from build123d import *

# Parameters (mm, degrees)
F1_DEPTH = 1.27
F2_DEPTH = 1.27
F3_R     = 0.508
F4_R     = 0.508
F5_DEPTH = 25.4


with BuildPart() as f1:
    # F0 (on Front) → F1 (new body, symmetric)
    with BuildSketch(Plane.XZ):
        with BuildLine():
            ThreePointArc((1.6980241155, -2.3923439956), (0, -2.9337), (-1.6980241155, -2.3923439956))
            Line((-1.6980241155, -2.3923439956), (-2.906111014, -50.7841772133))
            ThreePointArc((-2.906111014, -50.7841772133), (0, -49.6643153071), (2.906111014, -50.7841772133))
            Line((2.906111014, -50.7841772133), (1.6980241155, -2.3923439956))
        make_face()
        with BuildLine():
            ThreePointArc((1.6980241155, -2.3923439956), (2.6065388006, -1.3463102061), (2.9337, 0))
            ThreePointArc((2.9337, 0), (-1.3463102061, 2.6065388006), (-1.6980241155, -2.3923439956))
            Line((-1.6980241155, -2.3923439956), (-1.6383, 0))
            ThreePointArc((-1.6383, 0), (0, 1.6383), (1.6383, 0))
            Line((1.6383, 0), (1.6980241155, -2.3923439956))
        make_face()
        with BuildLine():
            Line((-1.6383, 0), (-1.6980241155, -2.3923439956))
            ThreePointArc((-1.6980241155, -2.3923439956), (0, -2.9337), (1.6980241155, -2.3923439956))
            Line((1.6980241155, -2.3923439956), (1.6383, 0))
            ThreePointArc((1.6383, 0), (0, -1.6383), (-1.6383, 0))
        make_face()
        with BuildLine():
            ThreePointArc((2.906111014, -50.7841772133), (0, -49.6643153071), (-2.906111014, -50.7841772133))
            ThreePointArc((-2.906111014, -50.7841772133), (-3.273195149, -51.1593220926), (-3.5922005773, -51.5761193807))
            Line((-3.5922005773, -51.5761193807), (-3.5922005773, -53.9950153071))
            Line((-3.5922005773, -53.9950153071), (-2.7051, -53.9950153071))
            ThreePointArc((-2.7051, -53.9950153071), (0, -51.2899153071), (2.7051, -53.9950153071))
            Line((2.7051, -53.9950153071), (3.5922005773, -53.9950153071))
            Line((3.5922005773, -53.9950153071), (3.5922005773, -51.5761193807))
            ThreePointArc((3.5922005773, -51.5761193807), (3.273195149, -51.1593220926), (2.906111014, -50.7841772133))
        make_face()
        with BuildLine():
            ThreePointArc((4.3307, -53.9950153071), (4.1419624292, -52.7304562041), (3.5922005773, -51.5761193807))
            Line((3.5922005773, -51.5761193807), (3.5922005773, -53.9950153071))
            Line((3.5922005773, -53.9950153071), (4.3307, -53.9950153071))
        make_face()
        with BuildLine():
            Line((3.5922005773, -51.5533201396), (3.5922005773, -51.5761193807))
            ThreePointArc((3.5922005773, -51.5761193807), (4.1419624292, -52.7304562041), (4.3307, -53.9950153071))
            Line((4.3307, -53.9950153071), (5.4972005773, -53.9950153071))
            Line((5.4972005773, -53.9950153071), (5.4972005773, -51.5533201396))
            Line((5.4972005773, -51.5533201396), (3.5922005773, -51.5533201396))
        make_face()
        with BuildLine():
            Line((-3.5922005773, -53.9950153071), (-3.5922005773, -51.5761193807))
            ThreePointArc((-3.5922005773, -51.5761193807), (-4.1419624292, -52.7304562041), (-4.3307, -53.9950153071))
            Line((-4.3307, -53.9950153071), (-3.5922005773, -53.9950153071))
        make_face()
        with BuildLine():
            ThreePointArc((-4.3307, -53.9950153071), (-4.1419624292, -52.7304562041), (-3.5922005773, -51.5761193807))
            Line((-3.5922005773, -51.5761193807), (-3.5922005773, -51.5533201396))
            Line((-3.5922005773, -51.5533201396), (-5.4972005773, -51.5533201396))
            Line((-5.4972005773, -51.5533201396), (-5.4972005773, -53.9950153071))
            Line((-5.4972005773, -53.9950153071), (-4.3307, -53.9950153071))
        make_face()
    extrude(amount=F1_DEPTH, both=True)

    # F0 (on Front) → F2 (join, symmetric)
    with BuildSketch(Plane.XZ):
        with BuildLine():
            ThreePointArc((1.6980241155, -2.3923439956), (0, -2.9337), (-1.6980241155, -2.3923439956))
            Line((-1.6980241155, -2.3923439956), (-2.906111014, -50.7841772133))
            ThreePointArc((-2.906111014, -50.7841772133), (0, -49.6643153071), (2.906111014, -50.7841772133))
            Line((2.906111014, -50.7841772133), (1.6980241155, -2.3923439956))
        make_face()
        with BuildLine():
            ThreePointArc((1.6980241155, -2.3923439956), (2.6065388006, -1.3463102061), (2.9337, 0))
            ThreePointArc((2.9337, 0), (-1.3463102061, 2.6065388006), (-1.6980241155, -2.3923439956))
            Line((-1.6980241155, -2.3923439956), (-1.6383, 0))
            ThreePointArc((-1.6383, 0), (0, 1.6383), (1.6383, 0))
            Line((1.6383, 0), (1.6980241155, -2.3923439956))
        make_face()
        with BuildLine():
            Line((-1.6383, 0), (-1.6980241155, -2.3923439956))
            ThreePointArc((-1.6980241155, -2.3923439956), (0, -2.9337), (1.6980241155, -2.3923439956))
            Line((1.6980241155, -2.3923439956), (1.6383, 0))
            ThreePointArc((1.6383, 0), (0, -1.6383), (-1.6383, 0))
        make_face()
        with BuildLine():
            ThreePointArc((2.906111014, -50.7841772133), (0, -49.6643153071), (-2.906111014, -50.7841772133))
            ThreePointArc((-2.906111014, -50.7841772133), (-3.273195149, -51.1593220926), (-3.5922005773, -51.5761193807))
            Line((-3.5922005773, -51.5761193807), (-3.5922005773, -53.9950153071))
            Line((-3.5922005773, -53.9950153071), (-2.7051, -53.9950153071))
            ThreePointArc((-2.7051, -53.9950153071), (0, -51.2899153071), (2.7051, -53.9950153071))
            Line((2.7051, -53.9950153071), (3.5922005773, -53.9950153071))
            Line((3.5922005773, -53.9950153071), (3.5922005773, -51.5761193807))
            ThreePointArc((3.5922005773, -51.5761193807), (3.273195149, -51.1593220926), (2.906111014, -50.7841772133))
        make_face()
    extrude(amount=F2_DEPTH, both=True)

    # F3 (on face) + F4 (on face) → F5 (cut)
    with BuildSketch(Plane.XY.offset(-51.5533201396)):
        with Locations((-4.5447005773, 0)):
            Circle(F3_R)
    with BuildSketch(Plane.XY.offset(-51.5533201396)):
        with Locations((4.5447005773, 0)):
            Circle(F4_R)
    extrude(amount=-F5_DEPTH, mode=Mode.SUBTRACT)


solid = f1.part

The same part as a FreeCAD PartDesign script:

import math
import FreeCAD as App
import Part
import Sketcher

V = App.Vector
Q = App.Units.Quantity

doc = App.newDocument("Part")
body = doc.addObject("PartDesign::Body", "Body")

sketch1 = body.newObject("Sketcher::SketchObject", "Sketch")
sketch1.AttachmentSupport = (doc.getObject("XZ_Plane"), [""])
sketch1.MapMode = "FlatFace"
sketch1.addGeometry([
    Part.LineSegment(V(-1.698024, -2.392344, 0), V(-2.906111, -50.784177, 0)),
    Part.ArcOfCircle(Part.Circle(V(0, -53.995015, 0), V(0, 0, 1), 4.3307), math.radians(132.148063), math.radians(146.044684)),
    Part.LineSegment(V(-3.592201, -51.576119, 0), V(-3.592201, -51.55332, 0)),
    Part.LineSegment(V(-3.592201, -51.55332, 0), V(-5.497201, -51.55332, 0)),
    Part.LineSegment(V(-5.497201, -51.55332, 0), V(-5.497201, -53.995015, 0)),
    Part.LineSegment(V(-5.497201, -53.995015, 0), V(-2.7051, -53.995015, 0)),
    Part.ArcOfCircle(Part.Circle(V(0, -53.995015, 0), V(0, 0, 1), 2.7051), math.radians(0), math.radians(180)),
    Part.LineSegment(V(2.7051, -53.995015, 0), V(5.497201, -53.995015, 0)),
    Part.LineSegment(V(5.497201, -53.995015, 0), V(5.497201, -51.55332, 0)),
    Part.LineSegment(V(5.497201, -51.55332, 0), V(3.592201, -51.55332, 0)),
    Part.LineSegment(V(3.592201, -51.55332, 0), V(3.592201, -51.576119, 0)),
    Part.ArcOfCircle(Part.Circle(V(0, -53.995015, 0), V(0, 0, 1), 4.3307), math.radians(33.955316), math.radians(47.851937)),
    Part.LineSegment(V(2.906111, -50.784177, 0), V(1.698024, -2.392344, 0)),
    Part.ArcOfCircle(Part.Circle(V(0, 0, 0), V(0, 0, 1), 2.9337), math.radians(-54.633849), math.radians(0)),
    Part.ArcOfCircle(Part.Circle(V(0, 0, 0), V(0, 0, 1), 2.9337), math.radians(0), math.radians(234.633849)),
    Part.Circle(V(0, 0, 0), V(0, 0, 1), 1.6383),
], False)
sketch1.addConstraint([
    Sketcher.Constraint("Coincident", 0, 2, 1, 1),
    Sketcher.Constraint("Coincident", 1, 2, 2, 1),
    Sketcher.Constraint("Coincident", 2, 2, 3, 1),
    Sketcher.Constraint("Coincident", 3, 2, 4, 1),
    Sketcher.Constraint("Coincident", 4, 2, 5, 1),
    Sketcher.Constraint("Coincident", 5, 2, 6, 2),
    Sketcher.Constraint("Coincident", 6, 1, 7, 1),
    Sketcher.Constraint("Coincident", 7, 2, 8, 1),
    Sketcher.Constraint("Coincident", 8, 2, 9, 1),
    Sketcher.Constraint("Coincident", 9, 2, 10, 1),
    Sketcher.Constraint("Coincident", 10, 2, 11, 1),
    Sketcher.Constraint("Coincident", 11, 2, 12, 1),
    Sketcher.Constraint("Coincident", 12, 2, 13, 1),
    Sketcher.Constraint("Tangent", 13, 2, 14, 1),
    Sketcher.Constraint("Coincident", 14, 2, 0, 1),
    Sketcher.Constraint("Vertical", 2),
    Sketcher.Constraint("Horizontal", 3),
    Sketcher.Constraint("Vertical", 4),
    Sketcher.Constraint("Horizontal", 5),
    Sketcher.Constraint("Horizontal", 7),
    Sketcher.Constraint("Vertical", 8),
    Sketcher.Constraint("Horizontal", 9),
    Sketcher.Constraint("Vertical", 10),
    Sketcher.Constraint("Coincident", 13, 3, -1, 1),
    Sketcher.Constraint("Coincident", 15, 3, -1, 1),
    Sketcher.Constraint("Coincident", 6, 3, 1, 3),
    Sketcher.Constraint("Coincident", 11, 3, 1, 3),
    Sketcher.Constraint("Equal", 1, 11),
    Sketcher.Constraint("Equal", 13, 14),
    Sketcher.Constraint("Symmetric", 5, 2, 6, 1, -2),
    Sketcher.Constraint("Symmetric", 3, 2, 8, 2, -2),
    Sketcher.Constraint("PointOnObject", 13, 2, -1),
    Sketcher.Constraint("Horizontal", 11, 3, 4, 2),
    Sketcher.Constraint("Horizontal", 1, 2, 10, 2),
    Sketcher.Constraint("Horizontal", 0, 2, 11, 2),
    Sketcher.Constraint("Horizontal", 12, 2, 14, 2),
    Sketcher.Constraint("Diameter", 15, Q("0.129 in")),
    Sketcher.Constraint("Radius", 1, Q("0.1705 in")),
    Sketcher.Constraint("Radius", 6, Q("0.1065 in")),
    Sketcher.Constraint("Radius", 13, Q("0.1155 in")),
    Sketcher.Constraint("DistanceX", 3, 2, 3, 1, Q("0.075 in")),
    Sketcher.Constraint("DistanceX", 5, 1, 5, 2, 2.792101),
    Sketcher.Constraint("DistanceY", 2, 1, 2, 2, 0.022799),
    Sketcher.Constraint("Distance", 0, 48.406911),
    Sketcher.Constraint("DistanceX", 0, 2, -1, 1, 2.906111),
    Sketcher.Constraint("DistanceY", 1, 2, -1, 1, 51.576119),
])
pad1 = body.newObject("PartDesign::Pad", "Pad")
pad1.Profile = sketch1
pad1.Length = Q("0.1 in")
pad1.Midplane = True

sketch2 = body.newObject("Sketcher::SketchObject", "Sketch001")
sketch2.AttachmentSupport = (doc.getObject("XZ_Plane"), [""])
sketch2.MapMode = "FlatFace"
sketch2.addGeometry([
    Part.LineSegment(V(-1.698024, -2.392344, 0), V(-2.906111, -50.784177, 0)),
    Part.ArcOfCircle(Part.Circle(V(0, -53.995015, 0), V(0, 0, 1), 4.3307), math.radians(132.148063), math.radians(146.044684)),
    Part.LineSegment(V(-3.592201, -51.576119, 0), V(-3.592201, -53.995015, 0)),
    Part.LineSegment(V(-3.592201, -53.995015, 0), V(-2.7051, -53.995015, 0)),
    Part.ArcOfCircle(Part.Circle(V(0, -53.995015, 0), V(0, 0, 1), 2.7051), math.radians(0), math.radians(180)),
    Part.LineSegment(V(2.7051, -53.995015, 0), V(3.592201, -53.995015, 0)),
    Part.LineSegment(V(3.592201, -53.995015, 0), V(3.592201, -51.576119, 0)),
    Part.ArcOfCircle(Part.Circle(V(0, -53.995015, 0), V(0, 0, 1), 4.3307), math.radians(33.955316), math.radians(47.851937)),
    Part.LineSegment(V(2.906111, -50.784177, 0), V(1.698024, -2.392344, 0)),
    Part.ArcOfCircle(Part.Circle(V(0, 0, 0), V(0, 0, 1), 2.9337), math.radians(-54.633849), math.radians(0)),
    Part.ArcOfCircle(Part.Circle(V(0, 0, 0), V(0, 0, 1), 2.9337), math.radians(0), math.radians(234.633849)),
    Part.Circle(V(0, 0, 0), V(0, 0, 1), 1.6383),
], False)
sketch2.addConstraint([
    Sketcher.Constraint("Coincident", 0, 2, 1, 1),
    Sketcher.Constraint("Coincident", 1, 2, 2, 1),
    Sketcher.Constraint("Coincident", 2, 2, 3, 1),
    Sketcher.Constraint("Coincident", 3, 2, 4, 2),
    Sketcher.Constraint("Coincident", 4, 1, 5, 1),
    Sketcher.Constraint("Coincident", 5, 2, 6, 1),
    Sketcher.Constraint("Coincident", 6, 2, 7, 1),
    Sketcher.Constraint("Coincident", 7, 2, 8, 1),
    Sketcher.Constraint("Coincident", 8, 2, 9, 1),
    Sketcher.Constraint("Tangent", 9, 2, 10, 1),
    Sketcher.Constraint("Coincident", 10, 2, 0, 1),
    Sketcher.Constraint("Vertical", 2),
    Sketcher.Constraint("Horizontal", 3),
    Sketcher.Constraint("Horizontal", 5),
    Sketcher.Constraint("Vertical", 6),
    Sketcher.Constraint("Coincident", 9, 3, -1, 1),
    Sketcher.Constraint("Coincident", 11, 3, -1, 1),
    Sketcher.Constraint("Coincident", 4, 3, 1, 3),
    Sketcher.Constraint("Coincident", 7, 3, 1, 3),
    Sketcher.Constraint("Equal", 1, 7),
    Sketcher.Constraint("Equal", 9, 10),
    Sketcher.Constraint("Symmetric", 3, 2, 4, 1, -2),
    Sketcher.Constraint("PointOnObject", 9, 2, -1),
    Sketcher.Constraint("Horizontal", 7, 3, 2, 2),
    Sketcher.Constraint("Horizontal", 1, 2, 6, 2),
    Sketcher.Constraint("Horizontal", 0, 2, 7, 2),
    Sketcher.Constraint("Horizontal", 8, 2, 10, 2),
    Sketcher.Constraint("Diameter", 11, Q("0.129 in")),
    Sketcher.Constraint("Radius", 1, Q("0.1705 in")),
    Sketcher.Constraint("Radius", 4, Q("0.1065 in")),
    Sketcher.Constraint("Radius", 9, Q("0.1155 in")),
    Sketcher.Constraint("DistanceX", 3, 1, 3, 2, 0.887101),
    Sketcher.Constraint("Distance", 0, 48.406911),
    Sketcher.Constraint("DistanceX", 0, 2, -1, 1, 2.906111),
    Sketcher.Constraint("DistanceY", 1, 2, -1, 1, 51.576119),
])
pad2 = body.newObject("PartDesign::Pad", "Pad001")
pad2.Profile = sketch2
pad2.Length = Q("0.1 in")
pad2.Midplane = True

sketch3 = body.newObject("Sketcher::SketchObject", "Sketch002")
sketch3.AttachmentSupport = (doc.getObject("XY_Plane"), [""])
sketch3.MapMode = "FlatFace"
sketch3.AttachmentOffset = App.Placement(V(0, 0, -51.55332), App.Rotation())
sketch3.addGeometry([
    Part.Circle(V(-4.544701, 0, 0), V(0, 0, 1), 0.508),
    Part.Circle(V(4.544701, 0, 0), V(0, 0, 1), 0.508),
], False)
sketch3.addConstraint([
    Sketcher.Constraint("Equal", 0, 1),
    Sketcher.Constraint("Symmetric", 0, 3, 1, 3, -1, 1),
    Sketcher.Constraint("PointOnObject", 0, 3, -1),
    Sketcher.Constraint("Diameter", 0, Q("0.04 in")),
    Sketcher.Constraint("DistanceX", 0, 3, -1, 1, 4.544701),
])
pocket1 = body.newObject("PartDesign::Pocket", "Pocket")
pocket1.Profile = sketch3
pocket1.Length = Q("1 in")

doc.recompute()
